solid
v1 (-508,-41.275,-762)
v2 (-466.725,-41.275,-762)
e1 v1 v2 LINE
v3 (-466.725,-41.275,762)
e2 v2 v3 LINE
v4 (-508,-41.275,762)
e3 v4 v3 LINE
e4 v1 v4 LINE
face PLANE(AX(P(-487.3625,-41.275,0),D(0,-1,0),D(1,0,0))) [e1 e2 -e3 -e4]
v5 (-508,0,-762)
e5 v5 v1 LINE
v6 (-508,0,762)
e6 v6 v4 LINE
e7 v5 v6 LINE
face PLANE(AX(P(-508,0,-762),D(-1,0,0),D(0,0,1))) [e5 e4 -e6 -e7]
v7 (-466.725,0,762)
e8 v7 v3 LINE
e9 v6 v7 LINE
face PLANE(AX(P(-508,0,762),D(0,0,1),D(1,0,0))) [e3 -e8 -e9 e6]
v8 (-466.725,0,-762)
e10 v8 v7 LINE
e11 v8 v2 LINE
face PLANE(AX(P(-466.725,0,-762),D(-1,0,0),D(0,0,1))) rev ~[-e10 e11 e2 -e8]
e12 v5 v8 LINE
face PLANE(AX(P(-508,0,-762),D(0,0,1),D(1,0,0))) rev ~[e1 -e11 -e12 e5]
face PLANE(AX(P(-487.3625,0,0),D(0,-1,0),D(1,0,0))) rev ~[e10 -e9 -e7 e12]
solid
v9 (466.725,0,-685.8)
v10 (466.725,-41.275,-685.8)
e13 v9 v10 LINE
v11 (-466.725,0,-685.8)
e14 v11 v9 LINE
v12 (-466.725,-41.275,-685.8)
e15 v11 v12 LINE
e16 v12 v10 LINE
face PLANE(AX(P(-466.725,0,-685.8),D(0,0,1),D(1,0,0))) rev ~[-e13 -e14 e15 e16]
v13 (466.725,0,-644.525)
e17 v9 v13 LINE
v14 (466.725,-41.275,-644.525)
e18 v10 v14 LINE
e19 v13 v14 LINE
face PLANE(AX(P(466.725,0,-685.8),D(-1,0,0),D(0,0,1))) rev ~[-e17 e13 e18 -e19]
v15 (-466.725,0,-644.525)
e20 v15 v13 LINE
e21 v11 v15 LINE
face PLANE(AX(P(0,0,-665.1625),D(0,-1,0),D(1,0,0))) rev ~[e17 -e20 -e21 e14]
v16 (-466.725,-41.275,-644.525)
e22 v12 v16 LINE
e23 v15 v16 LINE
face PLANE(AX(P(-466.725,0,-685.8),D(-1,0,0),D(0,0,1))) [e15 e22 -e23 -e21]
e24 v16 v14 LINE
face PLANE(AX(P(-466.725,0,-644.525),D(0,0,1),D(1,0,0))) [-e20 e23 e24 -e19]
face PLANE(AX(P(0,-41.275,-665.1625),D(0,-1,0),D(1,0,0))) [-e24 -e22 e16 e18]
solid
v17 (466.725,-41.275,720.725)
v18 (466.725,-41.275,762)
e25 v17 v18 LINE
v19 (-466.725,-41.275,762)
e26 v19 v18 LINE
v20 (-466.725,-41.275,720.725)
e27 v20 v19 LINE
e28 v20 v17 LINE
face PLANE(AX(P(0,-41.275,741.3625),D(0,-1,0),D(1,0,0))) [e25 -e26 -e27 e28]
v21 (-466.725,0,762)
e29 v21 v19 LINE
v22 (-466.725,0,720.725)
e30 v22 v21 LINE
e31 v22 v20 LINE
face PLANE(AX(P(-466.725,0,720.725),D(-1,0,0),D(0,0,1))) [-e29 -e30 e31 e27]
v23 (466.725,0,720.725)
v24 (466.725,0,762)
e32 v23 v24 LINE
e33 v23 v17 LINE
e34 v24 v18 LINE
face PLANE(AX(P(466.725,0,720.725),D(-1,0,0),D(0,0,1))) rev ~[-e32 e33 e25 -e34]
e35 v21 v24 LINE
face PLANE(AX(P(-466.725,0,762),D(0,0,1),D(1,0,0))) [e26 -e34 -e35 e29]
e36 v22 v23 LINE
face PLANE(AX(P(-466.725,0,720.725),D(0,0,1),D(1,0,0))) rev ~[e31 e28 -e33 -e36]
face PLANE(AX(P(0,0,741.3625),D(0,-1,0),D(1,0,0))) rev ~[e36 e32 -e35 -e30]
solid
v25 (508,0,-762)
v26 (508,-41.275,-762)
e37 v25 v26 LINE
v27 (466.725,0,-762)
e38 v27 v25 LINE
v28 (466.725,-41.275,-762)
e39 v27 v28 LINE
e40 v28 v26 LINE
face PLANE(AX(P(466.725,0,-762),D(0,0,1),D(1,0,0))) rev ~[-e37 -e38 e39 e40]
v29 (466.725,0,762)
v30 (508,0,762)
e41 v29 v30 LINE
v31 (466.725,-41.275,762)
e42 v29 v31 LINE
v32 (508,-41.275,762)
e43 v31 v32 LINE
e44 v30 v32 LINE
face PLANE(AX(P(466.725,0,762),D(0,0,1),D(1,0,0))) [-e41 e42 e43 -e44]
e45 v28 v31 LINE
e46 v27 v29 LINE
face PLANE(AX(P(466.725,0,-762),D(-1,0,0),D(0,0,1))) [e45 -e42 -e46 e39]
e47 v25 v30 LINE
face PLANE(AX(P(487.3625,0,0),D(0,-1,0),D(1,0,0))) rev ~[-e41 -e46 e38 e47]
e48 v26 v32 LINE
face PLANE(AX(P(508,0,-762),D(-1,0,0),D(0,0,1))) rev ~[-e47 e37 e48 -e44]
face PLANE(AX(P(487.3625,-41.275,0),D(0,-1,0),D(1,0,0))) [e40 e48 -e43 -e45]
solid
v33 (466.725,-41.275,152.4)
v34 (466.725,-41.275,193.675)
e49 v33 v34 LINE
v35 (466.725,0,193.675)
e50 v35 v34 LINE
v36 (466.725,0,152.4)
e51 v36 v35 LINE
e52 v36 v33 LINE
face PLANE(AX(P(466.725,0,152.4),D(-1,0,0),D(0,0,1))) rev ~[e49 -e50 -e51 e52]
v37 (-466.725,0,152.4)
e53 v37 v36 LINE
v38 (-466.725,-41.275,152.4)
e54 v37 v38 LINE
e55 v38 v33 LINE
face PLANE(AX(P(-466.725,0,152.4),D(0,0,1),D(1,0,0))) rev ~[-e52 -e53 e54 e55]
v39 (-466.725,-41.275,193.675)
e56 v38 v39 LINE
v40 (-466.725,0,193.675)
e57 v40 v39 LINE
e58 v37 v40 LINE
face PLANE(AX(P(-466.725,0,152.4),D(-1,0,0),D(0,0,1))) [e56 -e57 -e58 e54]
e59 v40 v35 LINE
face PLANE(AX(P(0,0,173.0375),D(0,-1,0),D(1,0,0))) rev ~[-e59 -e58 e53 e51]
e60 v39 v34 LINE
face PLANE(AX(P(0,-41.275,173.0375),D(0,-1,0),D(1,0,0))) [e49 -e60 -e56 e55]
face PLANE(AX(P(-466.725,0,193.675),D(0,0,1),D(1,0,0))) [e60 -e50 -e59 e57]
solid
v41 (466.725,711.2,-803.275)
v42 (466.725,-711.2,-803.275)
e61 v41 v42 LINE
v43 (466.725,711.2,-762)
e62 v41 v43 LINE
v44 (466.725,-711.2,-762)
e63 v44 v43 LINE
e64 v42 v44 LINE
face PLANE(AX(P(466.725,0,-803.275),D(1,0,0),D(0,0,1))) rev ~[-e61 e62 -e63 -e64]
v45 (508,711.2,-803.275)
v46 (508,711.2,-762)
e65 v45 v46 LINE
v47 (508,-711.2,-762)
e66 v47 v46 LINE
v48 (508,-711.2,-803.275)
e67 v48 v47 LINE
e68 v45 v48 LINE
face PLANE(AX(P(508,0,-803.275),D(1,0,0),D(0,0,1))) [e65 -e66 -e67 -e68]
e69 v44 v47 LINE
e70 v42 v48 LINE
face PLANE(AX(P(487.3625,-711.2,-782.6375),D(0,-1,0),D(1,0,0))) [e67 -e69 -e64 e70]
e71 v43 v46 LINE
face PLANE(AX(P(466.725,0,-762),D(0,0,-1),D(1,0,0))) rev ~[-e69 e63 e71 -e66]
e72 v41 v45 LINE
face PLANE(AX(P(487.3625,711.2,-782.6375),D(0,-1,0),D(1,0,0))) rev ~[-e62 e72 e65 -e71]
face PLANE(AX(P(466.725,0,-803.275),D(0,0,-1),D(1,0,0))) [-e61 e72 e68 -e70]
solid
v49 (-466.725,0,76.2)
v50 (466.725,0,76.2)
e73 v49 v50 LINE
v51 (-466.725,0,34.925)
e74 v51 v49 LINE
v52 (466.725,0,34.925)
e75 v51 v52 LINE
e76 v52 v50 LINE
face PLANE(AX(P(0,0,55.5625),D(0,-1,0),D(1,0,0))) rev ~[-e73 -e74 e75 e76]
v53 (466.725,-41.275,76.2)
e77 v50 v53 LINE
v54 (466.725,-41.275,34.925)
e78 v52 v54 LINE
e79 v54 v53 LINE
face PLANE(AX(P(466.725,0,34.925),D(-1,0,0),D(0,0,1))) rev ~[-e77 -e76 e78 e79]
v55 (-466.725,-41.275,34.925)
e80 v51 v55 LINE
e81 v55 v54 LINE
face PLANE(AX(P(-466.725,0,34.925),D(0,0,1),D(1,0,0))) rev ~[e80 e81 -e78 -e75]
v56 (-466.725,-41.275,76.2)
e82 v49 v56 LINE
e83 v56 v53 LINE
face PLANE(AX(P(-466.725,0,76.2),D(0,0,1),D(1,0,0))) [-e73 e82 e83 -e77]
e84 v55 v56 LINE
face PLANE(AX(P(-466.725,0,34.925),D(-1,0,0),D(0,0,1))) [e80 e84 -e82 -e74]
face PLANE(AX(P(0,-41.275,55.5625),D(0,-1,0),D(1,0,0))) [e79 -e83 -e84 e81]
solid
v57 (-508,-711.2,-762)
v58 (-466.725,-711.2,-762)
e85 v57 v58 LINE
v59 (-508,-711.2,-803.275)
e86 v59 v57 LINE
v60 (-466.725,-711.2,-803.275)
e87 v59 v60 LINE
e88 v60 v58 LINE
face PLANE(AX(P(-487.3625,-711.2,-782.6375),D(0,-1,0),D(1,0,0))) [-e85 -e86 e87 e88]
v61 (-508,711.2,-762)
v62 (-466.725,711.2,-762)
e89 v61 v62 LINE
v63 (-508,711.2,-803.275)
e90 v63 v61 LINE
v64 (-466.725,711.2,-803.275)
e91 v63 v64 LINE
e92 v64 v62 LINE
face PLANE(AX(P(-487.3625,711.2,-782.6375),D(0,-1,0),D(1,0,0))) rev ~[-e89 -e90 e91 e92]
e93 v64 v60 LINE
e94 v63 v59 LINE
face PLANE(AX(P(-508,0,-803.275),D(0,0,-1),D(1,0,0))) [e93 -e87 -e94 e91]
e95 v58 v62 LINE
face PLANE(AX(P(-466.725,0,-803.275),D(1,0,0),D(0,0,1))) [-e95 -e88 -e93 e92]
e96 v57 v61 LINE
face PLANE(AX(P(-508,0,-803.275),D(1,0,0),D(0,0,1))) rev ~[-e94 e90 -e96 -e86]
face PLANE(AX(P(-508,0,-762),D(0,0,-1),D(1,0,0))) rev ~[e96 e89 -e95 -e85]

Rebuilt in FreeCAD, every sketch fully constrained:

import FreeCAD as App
import Part
import Sketcher

V = App.Vector
Q = App.Units.Quantity


def add_polygon(sketch, points):
    """Adds a closed chain of lines whose ends are joined by coincident constraints."""
    first, n = sketch.GeometryCount, len(points)
    for a, b in zip(points, points[1:] + points[:1]):
        sketch.addGeometry(Part.LineSegment(App.Vector(*a, 0), App.Vector(*b, 0)), False)
    for i in range(n):
        sketch.addConstraint(Sketcher.Constraint("Coincident", first + i, 2, first + (i + 1) % n, 1))

doc = App.newDocument("Part")
body = doc.addObject("PartDesign::Body", "Body")
body.AllowCompound = True

sketch1 = body.newObject("Sketcher::SketchObject", "Sketch")
sketch1.AttachmentSupport = (doc.getObject("XZ_Plane"), [""])
sketch1.MapMode = "FlatFace"
add_polygon(sketch1, [(-508, 762), (-508, -762), (-467, -762), (-467, 762)])
add_polygon(sketch1, [(467, 762), (467, -762), (508, -762), (508, 762)])
sketch1.addConstraint(Sketcher.Constraint("Vertical", 0))
sketch1.addConstraint(Sketcher.Constraint("Horizontal", 1))
sketch1.addConstraint(Sketcher.Constraint("Vertical", 2))
sketch1.addConstraint(Sketcher.Constraint("Horizontal", 3))
sketch1.addConstraint(Sketcher.Constraint("Vertical", 4))
sketch1.addConstraint(Sketcher.Constraint("Horizontal", 5))
sketch1.addConstraint(Sketcher.Constraint("Vertical", 6))
sketch1.addConstraint(Sketcher.Constraint("Horizontal", 7))
sketch1.addConstraint(Sketcher.Constraint("Symmetric", 2, 2, 4, 2, -1, 1))
sketch1.addConstraint(Sketcher.Constraint("Symmetric", 0, 2, 6, 2, -1, 1))
sketch1.addConstraint(Sketcher.Constraint("Horizontal", 1, 2, 4, 2))
sketch1.addConstraint(Sketcher.Constraint("DistanceY", 0, 2, 0, 1, Q("60 in")))
sketch1.addConstraint(Sketcher.Constraint("DistanceX", 0, 2, -1, 1, Q("20 in")))
sketch1.addConstraint(Sketcher.Constraint("DistanceX", 1, 1, 1, 2, Q("1.625 in")))
pad1 = body.newObject("PartDesign::Pad", "Pad")
pad1.Profile = sketch1
pad1.Length = Q("1.625 in")
body2 = doc.addObject("PartDesign::Body", "Body001")
body2.AllowCompound = True

sketch2 = body2.newObject("Sketcher::SketchObject", "Sketch001")
sketch2.AttachmentSupport = (doc.getObject("XZ_Plane001"), [""])
sketch2.MapMode = "FlatFace"
add_polygon(sketch2, [(-467, 762), (-467, 721), (467, 721), (467, 762)])
add_polygon(sketch2, [(-467, 194), (-467, 152), (467, 152), (467, 194)])
add_polygon(sketch2, [(-467, 76), (-467, 35), (467, 35), (467, 76)])
add_polygon(sketch2, [(-467, -645), (-467, -686), (467, -686), (467, -645)])
sketch2.addConstraint(Sketcher.Constraint("Vertical", 0))
sketch2.addConstraint(Sketcher.Constraint("Horizontal", 1))
sketch2.addConstraint(Sketcher.Constraint("Vertical", 2))
sketch2.addConstraint(Sketcher.Constraint("Horizontal", 3))
sketch2.addConstraint(Sketcher.Constraint("Vertical", 4))
sketch2.addConstraint(Sketcher.Constraint("Horizontal", 5))
sketch2.addConstraint(Sketcher.Constraint("Vertical", 6))
sketch2.addConstraint(Sketcher.Constraint("Horizontal", 7))
sketch2.addConstraint(Sketcher.Constraint("Vertical", 8))
sketch2.addConstraint(Sketcher.Constraint("Horizontal", 9))
sketch2.addConstraint(Sketcher.Constraint("Vertical", 10))
sketch2.addConstraint(Sketcher.Constraint("Horizontal", 11))
sketch2.addConstraint(Sketcher.Constraint("Vertical", 12))
sketch2.addConstraint(Sketcher.Constraint("Horizontal", 13))
sketch2.addConstraint(Sketcher.Constraint("Vertical", 14))
sketch2.addConstraint(Sketcher.Constraint("Horizontal", 15))
sketch2.addConstraint(Sketcher.Constraint("Vertical", 3, 2, 4, 2))
sketch2.addConstraint(Sketcher.Constraint("Vertical", 2, 2, 5, 2))
sketch2.addConstraint(Sketcher.Constraint("Vertical", 7, 2, 8, 2))
sketch2.addConstraint(Sketcher.Constraint("Vertical", 6, 2, 9, 2))
sketch2.addConstraint(Sketcher.Constraint("Vertical", 11, 2, 12, 2))
sketch2.addConstraint(Sketcher.Constraint("Vertical", 10, 2, 13, 2))
sketch2.addConstraint(Sketcher.Constraint("Equal", 2, 4))
sketch2.addConstraint(Sketcher.Constraint("Equal", 6, 8))
sketch2.addConstraint(Sketcher.Constraint("Equal", 10, 12))
sketch2.addConstraint(Sketcher.Constraint("DistanceY", -1, 1, 2, 2, Q("30 in")))
sketch2.addConstraint(Sketcher.Constraint("DistanceY", -1, 1, 4, 2, Q("6 in")))
sketch2.addConstraint(Sketcher.Constraint("DistanceY", -1, 1, 10, 2, Q("3 in")))
sketch2.addConstraint(Sketcher.Constraint("DistanceY", 12, 2, -1, 1, Q("27 in")))
sketch2.addConstraint(Sketcher.Constraint("DistanceX", 1, 1, 1, 2, Q("36.75 in")))
sketch2.addConstraint(Sketcher.Constraint("DistanceY", 0, 2, 0, 1, Q("1.625 in")))
sketch2.addConstraint(Sketcher.Constraint("DistanceX", 0, 2, -1, 1, Q("18.375 in")))
pad2 = body2.newObject("PartDesign::Pad", "Pad001")
pad2.Profile = sketch2
pad2.Length = Q("1.625 in")
body3 = doc.addObject("PartDesign::Body", "Body002")
body3.AllowCompound = True

sketch3 = body3.newObject("Sketcher::SketchObject", "Sketch002")
sketch3.AttachmentSupport = (doc.getObject("XZ_Plane002"), [""])
sketch3.MapMode = "FlatFace"
add_polygon(sketch3, [(-508, -762), (-508, -803), (-467, -803), (-467, -762)])
add_polygon(sketch3, [(467, -762), (467, -803), (508, -803), (508, -762)])
sketch3.addConstraint(Sketcher.Constraint("Vertical", 0))
sketch3.addConstraint(Sketcher.Constraint("Horizontal", 1))
sketch3.addConstraint(Sketcher.Constraint("Vertical", 2))
sketch3.addConstraint(Sketcher.Constraint("Horizontal", 3))
sketch3.addConstraint(Sketcher.Constraint("Vertical", 4))
sketch3.addConstraint(Sketcher.Constraint("Horizontal", 5))
sketch3.addConstraint(Sketcher.Constraint("Vertical", 6))
sketch3.addConstraint(Sketcher.Constraint("Horizontal", 7))
sketch3.addConstraint(Sketcher.Constraint("Symmetric", 1, 2, 4, 2, -2))
sketch3.addConstraint(Sketcher.Constraint("Symmetric", 3, 2, 6, 2, -2))
sketch3.addConstraint(Sketcher.Constraint("Equal", 7, 0))
sketch3.addConstraint(Sketcher.Constraint("DistanceX", 0, 2, -1, 1, Q("20 in")))
sketch3.addConstraint(Sketcher.Constraint("DistanceY", 2, 2, -1, 1, Q("30 in")))
sketch3.addConstraint(Sketcher.Constraint("DistanceX", 1, 1, 1, 2, Q("1.625 in")))
pad3 = body3.newObject("PartDesign::Pad", "Pad002")
pad3.Profile = sketch3
pad3.Type = "TwoLengths"
pad3.Length = Q("28 in")
pad3.Length2 = Q("28 in")

doc.recompute()
